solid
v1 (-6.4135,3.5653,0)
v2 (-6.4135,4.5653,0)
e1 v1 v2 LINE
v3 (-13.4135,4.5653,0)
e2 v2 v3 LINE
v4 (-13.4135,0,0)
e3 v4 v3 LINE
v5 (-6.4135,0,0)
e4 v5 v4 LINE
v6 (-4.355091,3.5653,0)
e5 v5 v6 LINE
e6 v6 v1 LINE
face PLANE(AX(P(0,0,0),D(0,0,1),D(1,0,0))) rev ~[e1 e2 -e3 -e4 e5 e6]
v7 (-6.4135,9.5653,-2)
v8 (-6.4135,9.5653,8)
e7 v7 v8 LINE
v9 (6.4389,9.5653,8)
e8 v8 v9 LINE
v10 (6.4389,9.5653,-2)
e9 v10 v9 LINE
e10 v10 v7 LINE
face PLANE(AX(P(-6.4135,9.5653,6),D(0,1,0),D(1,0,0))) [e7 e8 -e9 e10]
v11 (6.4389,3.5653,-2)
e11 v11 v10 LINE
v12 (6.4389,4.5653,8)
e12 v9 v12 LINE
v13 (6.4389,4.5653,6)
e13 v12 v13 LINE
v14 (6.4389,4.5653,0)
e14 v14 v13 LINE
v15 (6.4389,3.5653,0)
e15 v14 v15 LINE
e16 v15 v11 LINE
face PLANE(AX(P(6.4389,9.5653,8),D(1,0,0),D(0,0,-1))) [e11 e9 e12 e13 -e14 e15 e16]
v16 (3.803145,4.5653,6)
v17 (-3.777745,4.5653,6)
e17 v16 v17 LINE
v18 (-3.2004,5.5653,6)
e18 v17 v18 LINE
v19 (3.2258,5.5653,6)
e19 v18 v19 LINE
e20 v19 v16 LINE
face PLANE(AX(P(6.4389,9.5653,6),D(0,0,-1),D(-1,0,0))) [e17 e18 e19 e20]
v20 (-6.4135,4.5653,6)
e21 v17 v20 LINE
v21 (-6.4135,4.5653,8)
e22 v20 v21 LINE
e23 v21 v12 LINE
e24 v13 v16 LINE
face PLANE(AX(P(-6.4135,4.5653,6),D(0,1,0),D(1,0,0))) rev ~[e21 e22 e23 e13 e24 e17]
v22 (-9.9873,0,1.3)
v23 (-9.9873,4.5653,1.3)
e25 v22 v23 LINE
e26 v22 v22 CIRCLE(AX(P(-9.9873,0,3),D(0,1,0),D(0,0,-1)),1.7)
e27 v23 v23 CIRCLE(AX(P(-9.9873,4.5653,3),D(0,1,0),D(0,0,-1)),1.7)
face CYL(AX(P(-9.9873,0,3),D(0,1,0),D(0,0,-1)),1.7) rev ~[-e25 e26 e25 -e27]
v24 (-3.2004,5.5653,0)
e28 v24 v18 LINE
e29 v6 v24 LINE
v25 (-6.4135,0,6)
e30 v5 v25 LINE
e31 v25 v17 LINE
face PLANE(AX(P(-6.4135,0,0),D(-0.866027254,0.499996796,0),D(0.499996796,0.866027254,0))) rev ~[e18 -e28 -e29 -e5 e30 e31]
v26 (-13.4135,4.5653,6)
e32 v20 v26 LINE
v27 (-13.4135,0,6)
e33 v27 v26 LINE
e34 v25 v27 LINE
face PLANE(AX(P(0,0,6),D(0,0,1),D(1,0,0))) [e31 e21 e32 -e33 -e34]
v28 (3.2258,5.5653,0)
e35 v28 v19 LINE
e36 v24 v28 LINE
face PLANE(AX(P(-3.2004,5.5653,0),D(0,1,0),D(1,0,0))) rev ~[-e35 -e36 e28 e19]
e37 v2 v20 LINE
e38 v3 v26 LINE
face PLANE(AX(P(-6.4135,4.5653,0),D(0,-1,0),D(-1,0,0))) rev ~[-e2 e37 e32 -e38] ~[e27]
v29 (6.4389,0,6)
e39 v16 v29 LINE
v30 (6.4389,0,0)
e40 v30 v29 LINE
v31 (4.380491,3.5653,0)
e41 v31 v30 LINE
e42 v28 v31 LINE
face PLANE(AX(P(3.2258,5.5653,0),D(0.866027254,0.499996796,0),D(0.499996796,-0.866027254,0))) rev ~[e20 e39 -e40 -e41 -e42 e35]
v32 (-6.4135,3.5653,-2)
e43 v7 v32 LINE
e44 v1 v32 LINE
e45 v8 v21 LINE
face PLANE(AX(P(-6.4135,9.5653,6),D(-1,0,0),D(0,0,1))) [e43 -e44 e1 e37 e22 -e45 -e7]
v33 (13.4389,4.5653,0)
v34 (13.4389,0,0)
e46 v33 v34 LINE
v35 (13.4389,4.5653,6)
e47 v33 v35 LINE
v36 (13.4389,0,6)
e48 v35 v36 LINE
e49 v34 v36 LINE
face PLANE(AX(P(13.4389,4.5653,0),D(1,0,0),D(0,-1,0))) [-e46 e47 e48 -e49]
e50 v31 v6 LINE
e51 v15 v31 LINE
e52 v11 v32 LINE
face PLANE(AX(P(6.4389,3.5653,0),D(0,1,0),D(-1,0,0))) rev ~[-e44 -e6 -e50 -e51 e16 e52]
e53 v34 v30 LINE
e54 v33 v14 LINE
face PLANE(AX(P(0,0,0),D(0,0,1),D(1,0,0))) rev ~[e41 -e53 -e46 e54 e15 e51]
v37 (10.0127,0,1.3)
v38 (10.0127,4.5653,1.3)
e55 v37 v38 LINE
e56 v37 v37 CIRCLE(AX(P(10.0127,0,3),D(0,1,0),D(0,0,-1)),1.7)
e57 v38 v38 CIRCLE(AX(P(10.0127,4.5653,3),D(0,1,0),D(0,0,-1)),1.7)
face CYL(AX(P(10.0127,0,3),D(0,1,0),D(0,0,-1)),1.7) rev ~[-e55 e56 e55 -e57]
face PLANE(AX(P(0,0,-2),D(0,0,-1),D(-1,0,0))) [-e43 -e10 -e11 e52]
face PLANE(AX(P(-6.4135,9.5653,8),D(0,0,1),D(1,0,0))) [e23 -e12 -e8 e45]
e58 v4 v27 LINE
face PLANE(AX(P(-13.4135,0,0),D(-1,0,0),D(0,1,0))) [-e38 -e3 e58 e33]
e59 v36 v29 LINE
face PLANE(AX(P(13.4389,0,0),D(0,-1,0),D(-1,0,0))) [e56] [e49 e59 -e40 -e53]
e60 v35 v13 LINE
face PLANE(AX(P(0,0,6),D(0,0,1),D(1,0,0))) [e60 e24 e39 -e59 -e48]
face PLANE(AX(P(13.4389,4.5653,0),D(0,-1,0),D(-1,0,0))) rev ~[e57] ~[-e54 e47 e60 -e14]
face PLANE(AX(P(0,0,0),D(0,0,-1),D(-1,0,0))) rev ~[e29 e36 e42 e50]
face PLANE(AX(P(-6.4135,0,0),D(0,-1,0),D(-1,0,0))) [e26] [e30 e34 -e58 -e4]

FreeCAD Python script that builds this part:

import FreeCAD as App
import Part
import Sketcher
Q = App.Units.Quantity

doc = App.newDocument("Part")
body = doc.addObject("PartDesign::Body", "Body")

sketch1 = body.newObject("Sketcher::SketchObject", "Sketch")
sketch1.AttachmentSupport = (doc.getObject("XY_Plane"), [""])
sketch1.MapMode = "FlatFace"
sketch1.addGeometry(Part.LineSegment(App.Vector(-13.4, 0, 0), App.Vector(-6.4, 0, 0)), False)
sketch1.addGeometry(Part.LineSegment(App.Vector(-6.4, 0, 0), App.Vector(-3.2, 5.6, 0)), False)
sketch1.addGeometry(Part.LineSegment(App.Vector(-3.2, 5.6, 0), App.Vector(3.2, 5.6, 0)), False)
sketch1.addGeometry(Part.LineSegment(App.Vector(3.2, 5.6, 0), App.Vector(6.4, 0, 0)), False)
sketch1.addGeometry(Part.LineSegment(App.Vector(6.4, 0, 0), App.Vector(13.4, 0, 0)), False)
sketch1.addGeometry(Part.LineSegment(App.Vector(13.4, 0, 0), App.Vector(13.4, 4.6, 0)), False)
sketch1.addGeometry(Part.LineSegment(App.Vector(13.4, 4.6, 0), App.Vector(6.4, 4.6, 0)), False)
sketch1.addGeometry(Part.LineSegment(App.Vector(6.4, 4.6, 0), App.Vector(6.4, 9.6, 0)), False)
sketch1.addGeometry(Part.LineSegment(App.Vector(6.4, 9.6, 0), App.Vector(-6.4, 9.6, 0)), False)
sketch1.addGeometry(Part.LineSegment(App.Vector(-6.4, 9.6, 0), App.Vector(-6.4, 4.6, 0)), False)
sketch1.addGeometry(Part.LineSegment(App.Vector(-6.4, 4.6, 0), App.Vector(-13.4, 4.6, 0)), False)
sketch1.addGeometry(Part.LineSegment(App.Vector(-13.4, 4.6, 0), App.Vector(-13.4, 0, 0)), False)
sketch1.addConstraint(Sketcher.Constraint("Coincident", 0, 2, 1, 1))
sketch1.addConstraint(Sketcher.Constraint("Coincident", 1, 2, 2, 1))
sketch1.addConstraint(Sketcher.Constraint("Coincident", 2, 2, 3, 1))
sketch1.addConstraint(Sketcher.Constraint("Coincident", 3, 2, 4, 1))
sketch1.addConstraint(Sketcher.Constraint("Coincident", 4, 2, 5, 1))
sketch1.addConstraint(Sketcher.Constraint("Coincident", 5, 2, 6, 1))
sketch1.addConstraint(Sketcher.Constraint("Coincident", 6, 2, 7, 1))
sketch1.addConstraint(Sketcher.Constraint("Coincident", 7, 2, 8, 1))
sketch1.addConstraint(Sketcher.Constraint("Coincident", 8, 2, 9, 1))
sketch1.addConstraint(Sketcher.Constraint("Coincident", 9, 2, 10, 1))
sketch1.addConstraint(Sketcher.Constraint("Coincident", 10, 2, 11, 1))
sketch1.addConstraint(Sketcher.Constraint("Coincident", 11, 2, 0, 1))
sketch1.addConstraint(Sketcher.Constraint("Horizontal", 0))
sketch1.addConstraint(Sketcher.Constraint("Horizontal", 2))
sketch1.addConstraint(Sketcher.Constraint("Horizontal", 4))
sketch1.addConstraint(Sketcher.Constraint("Vertical", 5))
sketch1.addConstraint(Sketcher.Constraint("Horizontal", 6))
sketch1.addConstraint(Sketcher.Constraint("Vertical", 7))
sketch1.addConstraint(Sketcher.Constraint("Horizontal", 8))
sketch1.addConstraint(Sketcher.Constraint("Vertical", 9))
sketch1.addConstraint(Sketcher.Constraint("Horizontal", 10))
sketch1.addConstraint(Sketcher.Constraint("Vertical", 11))
sketch1.addConstraint(Sketcher.Constraint("PointOnObject", 0, 2, -1))
sketch1.addConstraint(Sketcher.Constraint("PointOnObject", 3, 2, -1))
sketch1.addConstraint(Sketcher.Constraint("Horizontal", 6, 2, 9, 2))
sketch1.addConstraint(Sketcher.Constraint("Vertical", 3, 2, 6, 2))
sketch1.addConstraint(Sketcher.Constraint("Vertical", 0, 2, 8, 2))
sketch1.addConstraint(Sketcher.Constraint("Equal", 0, 4))
sketch1.addConstraint(Sketcher.Constraint("Equal", 1, 3))
sketch1.addConstraint(Sketcher.Constraint("DistanceX", 0, 1, 0, 2, Q("7 mm")))
sketch1.addConstraint(Sketcher.Constraint("DistanceY", 7, 1, 7, 2, Q("5 mm")))
sketch1.addConstraint(Sketcher.Constraint("Angle", 1, Q("60.0002 deg")))
sketch1.addConstraint(Sketcher.Constraint("DistanceY", 2, 2, 7, 2, Q("4 mm")))
sketch1.addConstraint(Sketcher.Constraint("DistanceX", 2, 1, 2, 2, Q("6.4262 mm")))
sketch1.addConstraint(Sketcher.Constraint("Distance", 1, Q("6.4262 mm")))
sketch1.addConstraint(Sketcher.Constraint("DistanceX", 0, 2, -1, 1, Q("6.4135 mm")))
pad1 = body.newObject("PartDesign::Pad", "Pad")
pad1.Profile = sketch1
pad1.Length = 6

sketch2 = body.newObject("Sketcher::SketchObject", "Sketch001")
sketch2.AttachmentSupport = (doc.getObject("XY_Plane"), [""])
sketch2.MapMode = "FlatFace"
sketch2.addGeometry(Part.LineSegment(App.Vector(6, 10, 0), App.Vector(6, 4, 0)), False)
sketch2.addGeometry(Part.LineSegment(App.Vector(6, 4, 0), App.Vector(-6, 4, 0)), False)
sketch2.addGeometry(Part.LineSegment(App.Vector(-6, 4, 0), App.Vector(-6, 10, 0)), False)
sketch2.addGeometry(Part.LineSegment(App.Vector(-6, 10, 0), App.Vector(6, 10, 0)), False)
sketch2.addConstraint(Sketcher.Constraint("Coincident", 0, 2, 1, 1))
sketch2.addConstraint(Sketcher.Constraint("Coincident", 1, 2, 2, 1))
sketch2.addConstraint(Sketcher.Constraint("Coincident", 2, 2, 3, 1))
sketch2.addConstraint(Sketcher.Constraint("Coincident", 3, 2, 0, 1))
sketch2.addConstraint(Sketcher.Constraint("Vertical", 0))
sketch2.addConstraint(Sketcher.Constraint("Horizontal", 1))
sketch2.addConstraint(Sketcher.Constraint("Vertical", 2))
sketch2.addConstraint(Sketcher.Constraint("Horizontal", 3))
sketch2.addConstraint(Sketcher.Constraint("DistanceY", 0, 2, 0, 1, Q("6 mm")))
sketch2.addConstraint(Sketcher.Constraint("DistanceX", 1, 2, 1, 1, Q("12.8524 mm")))
sketch2.addConstraint(Sketcher.Constraint("DistanceX", -1, 1, 0, 2, Q("6.439 mm")))
sketch2.addConstraint(Sketcher.Constraint("DistanceY", -1, 1, 0, 2, Q("3.5653 mm")))
pad2 = body.newObject("PartDesign::Pad", "Pad001")
pad2.Profile = sketch2
pad2.Length = 2
pad2.Reversed = True

sketch3 = body.newObject("Sketcher::SketchObject", "Sketch002")
sketch3.AttachmentSupport = (doc.getObject("XZ_Plane"), [""])
sketch3.MapMode = "FlatFace"
sketch3.addGeometry(Part.Circle(App.Vector(-10, 3, 0), App.Vector(0, 0, 1), 1.7), False)
sketch3.addGeometry(Part.Circle(App.Vector(10, 3, 0), App.Vector(0, 0, 1), 1.7), False)
sketch3.addConstraint(Sketcher.Constraint("Equal", 0, 1))
sketch3.addConstraint(Sketcher.Constraint("Horizontal", 0, 3, 1, 3))
sketch3.addConstraint(Sketcher.Constraint("Diameter", 0, Q("3.4 mm")))
sketch3.addConstraint(Sketcher.Constraint("DistanceY", -1, 1, 0, 3, Q("3 mm")))
sketch3.addConstraint(Sketcher.Constraint("DistanceX", 0, 3, 1, 3, Q("20 mm")))
sketch3.addConstraint(Sketcher.Constraint("DistanceX", 0, 3, -1, 1, Q("9.9873 mm")))
doc.recompute()
hole = body.newObject("PartDesign::Hole", "Hole")
hole.Profile = sketch3
hole.ThreadType = "None"
hole.Diameter = 3.4
hole.DepthType = "ThroughAll"

sketch4 = body.newObject("Sketcher::SketchObject", "Sketch003")
sketch4.AttachmentSupport = (doc.getObject("XZ_Plane"), [""])
sketch4.MapMode = "FlatFace"
sketch4.AttachmentOffset = App.Placement(App.Vector(0, 0, -9.5653), App.Rotation())
sketch4.addGeometry(Part.LineSegment(App.Vector(6.4, 8, 0), App.Vector(6.4, 6, 0)), False)
sketch4.addGeometry(Part.LineSegment(App.Vector(6.4, 6, 0), App.Vector(-6.4, 6, 0)), False)
sketch4.addGeometry(Part.LineSegment(App.Vector(-6.4, 6, 0), App.Vector(-6.4, 8, 0)), False)
sketch4.addGeometry(Part.LineSegment(App.Vector(-6.4, 8, 0), App.Vector(6.4, 8, 0)), False)
sketch4.addConstraint(Sketcher.Constraint("Coincident", 0, 2, 1, 1))
sketch4.addConstraint(Sketcher.Constraint("Coincident", 1, 2, 2, 1))
sketch4.addConstraint(Sketcher.Constraint("Coincident", 2, 2, 3, 1))
sketch4.addConstraint(Sketcher.Constraint("Coincident", 3, 2, 0, 1))
sketch4.addConstraint(Sketcher.Constraint("Vertical", 0))
sketch4.addConstraint(Sketcher.Constraint("Horizontal", 1))
sketch4.addConstraint(Sketcher.Constraint("Vertical", 2))
sketch4.addConstraint(Sketcher.Constraint("Horizontal", 3))
sketch4.addConstraint(Sketcher.Constraint("DistanceY", 0, 2, 0, 1, Q("2 mm")))
sketch4.addConstraint(Sketcher.Constraint("DistanceY", -1, 1, 0, 2, Q("6 mm")))
sketch4.addConstraint(Sketcher.Constraint("DistanceX", 1, 2, 1, 1, Q("12.8524 mm")))
sketch4.addConstraint(Sketcher.Constraint("DistanceX", -1, 1, 0, 2, Q("6.439 mm")))
pad3 = body.newObject("PartDesign::Pad", "Pad002")
pad3.Profile = sketch4
pad3.Length = 5

doc.recompute()
